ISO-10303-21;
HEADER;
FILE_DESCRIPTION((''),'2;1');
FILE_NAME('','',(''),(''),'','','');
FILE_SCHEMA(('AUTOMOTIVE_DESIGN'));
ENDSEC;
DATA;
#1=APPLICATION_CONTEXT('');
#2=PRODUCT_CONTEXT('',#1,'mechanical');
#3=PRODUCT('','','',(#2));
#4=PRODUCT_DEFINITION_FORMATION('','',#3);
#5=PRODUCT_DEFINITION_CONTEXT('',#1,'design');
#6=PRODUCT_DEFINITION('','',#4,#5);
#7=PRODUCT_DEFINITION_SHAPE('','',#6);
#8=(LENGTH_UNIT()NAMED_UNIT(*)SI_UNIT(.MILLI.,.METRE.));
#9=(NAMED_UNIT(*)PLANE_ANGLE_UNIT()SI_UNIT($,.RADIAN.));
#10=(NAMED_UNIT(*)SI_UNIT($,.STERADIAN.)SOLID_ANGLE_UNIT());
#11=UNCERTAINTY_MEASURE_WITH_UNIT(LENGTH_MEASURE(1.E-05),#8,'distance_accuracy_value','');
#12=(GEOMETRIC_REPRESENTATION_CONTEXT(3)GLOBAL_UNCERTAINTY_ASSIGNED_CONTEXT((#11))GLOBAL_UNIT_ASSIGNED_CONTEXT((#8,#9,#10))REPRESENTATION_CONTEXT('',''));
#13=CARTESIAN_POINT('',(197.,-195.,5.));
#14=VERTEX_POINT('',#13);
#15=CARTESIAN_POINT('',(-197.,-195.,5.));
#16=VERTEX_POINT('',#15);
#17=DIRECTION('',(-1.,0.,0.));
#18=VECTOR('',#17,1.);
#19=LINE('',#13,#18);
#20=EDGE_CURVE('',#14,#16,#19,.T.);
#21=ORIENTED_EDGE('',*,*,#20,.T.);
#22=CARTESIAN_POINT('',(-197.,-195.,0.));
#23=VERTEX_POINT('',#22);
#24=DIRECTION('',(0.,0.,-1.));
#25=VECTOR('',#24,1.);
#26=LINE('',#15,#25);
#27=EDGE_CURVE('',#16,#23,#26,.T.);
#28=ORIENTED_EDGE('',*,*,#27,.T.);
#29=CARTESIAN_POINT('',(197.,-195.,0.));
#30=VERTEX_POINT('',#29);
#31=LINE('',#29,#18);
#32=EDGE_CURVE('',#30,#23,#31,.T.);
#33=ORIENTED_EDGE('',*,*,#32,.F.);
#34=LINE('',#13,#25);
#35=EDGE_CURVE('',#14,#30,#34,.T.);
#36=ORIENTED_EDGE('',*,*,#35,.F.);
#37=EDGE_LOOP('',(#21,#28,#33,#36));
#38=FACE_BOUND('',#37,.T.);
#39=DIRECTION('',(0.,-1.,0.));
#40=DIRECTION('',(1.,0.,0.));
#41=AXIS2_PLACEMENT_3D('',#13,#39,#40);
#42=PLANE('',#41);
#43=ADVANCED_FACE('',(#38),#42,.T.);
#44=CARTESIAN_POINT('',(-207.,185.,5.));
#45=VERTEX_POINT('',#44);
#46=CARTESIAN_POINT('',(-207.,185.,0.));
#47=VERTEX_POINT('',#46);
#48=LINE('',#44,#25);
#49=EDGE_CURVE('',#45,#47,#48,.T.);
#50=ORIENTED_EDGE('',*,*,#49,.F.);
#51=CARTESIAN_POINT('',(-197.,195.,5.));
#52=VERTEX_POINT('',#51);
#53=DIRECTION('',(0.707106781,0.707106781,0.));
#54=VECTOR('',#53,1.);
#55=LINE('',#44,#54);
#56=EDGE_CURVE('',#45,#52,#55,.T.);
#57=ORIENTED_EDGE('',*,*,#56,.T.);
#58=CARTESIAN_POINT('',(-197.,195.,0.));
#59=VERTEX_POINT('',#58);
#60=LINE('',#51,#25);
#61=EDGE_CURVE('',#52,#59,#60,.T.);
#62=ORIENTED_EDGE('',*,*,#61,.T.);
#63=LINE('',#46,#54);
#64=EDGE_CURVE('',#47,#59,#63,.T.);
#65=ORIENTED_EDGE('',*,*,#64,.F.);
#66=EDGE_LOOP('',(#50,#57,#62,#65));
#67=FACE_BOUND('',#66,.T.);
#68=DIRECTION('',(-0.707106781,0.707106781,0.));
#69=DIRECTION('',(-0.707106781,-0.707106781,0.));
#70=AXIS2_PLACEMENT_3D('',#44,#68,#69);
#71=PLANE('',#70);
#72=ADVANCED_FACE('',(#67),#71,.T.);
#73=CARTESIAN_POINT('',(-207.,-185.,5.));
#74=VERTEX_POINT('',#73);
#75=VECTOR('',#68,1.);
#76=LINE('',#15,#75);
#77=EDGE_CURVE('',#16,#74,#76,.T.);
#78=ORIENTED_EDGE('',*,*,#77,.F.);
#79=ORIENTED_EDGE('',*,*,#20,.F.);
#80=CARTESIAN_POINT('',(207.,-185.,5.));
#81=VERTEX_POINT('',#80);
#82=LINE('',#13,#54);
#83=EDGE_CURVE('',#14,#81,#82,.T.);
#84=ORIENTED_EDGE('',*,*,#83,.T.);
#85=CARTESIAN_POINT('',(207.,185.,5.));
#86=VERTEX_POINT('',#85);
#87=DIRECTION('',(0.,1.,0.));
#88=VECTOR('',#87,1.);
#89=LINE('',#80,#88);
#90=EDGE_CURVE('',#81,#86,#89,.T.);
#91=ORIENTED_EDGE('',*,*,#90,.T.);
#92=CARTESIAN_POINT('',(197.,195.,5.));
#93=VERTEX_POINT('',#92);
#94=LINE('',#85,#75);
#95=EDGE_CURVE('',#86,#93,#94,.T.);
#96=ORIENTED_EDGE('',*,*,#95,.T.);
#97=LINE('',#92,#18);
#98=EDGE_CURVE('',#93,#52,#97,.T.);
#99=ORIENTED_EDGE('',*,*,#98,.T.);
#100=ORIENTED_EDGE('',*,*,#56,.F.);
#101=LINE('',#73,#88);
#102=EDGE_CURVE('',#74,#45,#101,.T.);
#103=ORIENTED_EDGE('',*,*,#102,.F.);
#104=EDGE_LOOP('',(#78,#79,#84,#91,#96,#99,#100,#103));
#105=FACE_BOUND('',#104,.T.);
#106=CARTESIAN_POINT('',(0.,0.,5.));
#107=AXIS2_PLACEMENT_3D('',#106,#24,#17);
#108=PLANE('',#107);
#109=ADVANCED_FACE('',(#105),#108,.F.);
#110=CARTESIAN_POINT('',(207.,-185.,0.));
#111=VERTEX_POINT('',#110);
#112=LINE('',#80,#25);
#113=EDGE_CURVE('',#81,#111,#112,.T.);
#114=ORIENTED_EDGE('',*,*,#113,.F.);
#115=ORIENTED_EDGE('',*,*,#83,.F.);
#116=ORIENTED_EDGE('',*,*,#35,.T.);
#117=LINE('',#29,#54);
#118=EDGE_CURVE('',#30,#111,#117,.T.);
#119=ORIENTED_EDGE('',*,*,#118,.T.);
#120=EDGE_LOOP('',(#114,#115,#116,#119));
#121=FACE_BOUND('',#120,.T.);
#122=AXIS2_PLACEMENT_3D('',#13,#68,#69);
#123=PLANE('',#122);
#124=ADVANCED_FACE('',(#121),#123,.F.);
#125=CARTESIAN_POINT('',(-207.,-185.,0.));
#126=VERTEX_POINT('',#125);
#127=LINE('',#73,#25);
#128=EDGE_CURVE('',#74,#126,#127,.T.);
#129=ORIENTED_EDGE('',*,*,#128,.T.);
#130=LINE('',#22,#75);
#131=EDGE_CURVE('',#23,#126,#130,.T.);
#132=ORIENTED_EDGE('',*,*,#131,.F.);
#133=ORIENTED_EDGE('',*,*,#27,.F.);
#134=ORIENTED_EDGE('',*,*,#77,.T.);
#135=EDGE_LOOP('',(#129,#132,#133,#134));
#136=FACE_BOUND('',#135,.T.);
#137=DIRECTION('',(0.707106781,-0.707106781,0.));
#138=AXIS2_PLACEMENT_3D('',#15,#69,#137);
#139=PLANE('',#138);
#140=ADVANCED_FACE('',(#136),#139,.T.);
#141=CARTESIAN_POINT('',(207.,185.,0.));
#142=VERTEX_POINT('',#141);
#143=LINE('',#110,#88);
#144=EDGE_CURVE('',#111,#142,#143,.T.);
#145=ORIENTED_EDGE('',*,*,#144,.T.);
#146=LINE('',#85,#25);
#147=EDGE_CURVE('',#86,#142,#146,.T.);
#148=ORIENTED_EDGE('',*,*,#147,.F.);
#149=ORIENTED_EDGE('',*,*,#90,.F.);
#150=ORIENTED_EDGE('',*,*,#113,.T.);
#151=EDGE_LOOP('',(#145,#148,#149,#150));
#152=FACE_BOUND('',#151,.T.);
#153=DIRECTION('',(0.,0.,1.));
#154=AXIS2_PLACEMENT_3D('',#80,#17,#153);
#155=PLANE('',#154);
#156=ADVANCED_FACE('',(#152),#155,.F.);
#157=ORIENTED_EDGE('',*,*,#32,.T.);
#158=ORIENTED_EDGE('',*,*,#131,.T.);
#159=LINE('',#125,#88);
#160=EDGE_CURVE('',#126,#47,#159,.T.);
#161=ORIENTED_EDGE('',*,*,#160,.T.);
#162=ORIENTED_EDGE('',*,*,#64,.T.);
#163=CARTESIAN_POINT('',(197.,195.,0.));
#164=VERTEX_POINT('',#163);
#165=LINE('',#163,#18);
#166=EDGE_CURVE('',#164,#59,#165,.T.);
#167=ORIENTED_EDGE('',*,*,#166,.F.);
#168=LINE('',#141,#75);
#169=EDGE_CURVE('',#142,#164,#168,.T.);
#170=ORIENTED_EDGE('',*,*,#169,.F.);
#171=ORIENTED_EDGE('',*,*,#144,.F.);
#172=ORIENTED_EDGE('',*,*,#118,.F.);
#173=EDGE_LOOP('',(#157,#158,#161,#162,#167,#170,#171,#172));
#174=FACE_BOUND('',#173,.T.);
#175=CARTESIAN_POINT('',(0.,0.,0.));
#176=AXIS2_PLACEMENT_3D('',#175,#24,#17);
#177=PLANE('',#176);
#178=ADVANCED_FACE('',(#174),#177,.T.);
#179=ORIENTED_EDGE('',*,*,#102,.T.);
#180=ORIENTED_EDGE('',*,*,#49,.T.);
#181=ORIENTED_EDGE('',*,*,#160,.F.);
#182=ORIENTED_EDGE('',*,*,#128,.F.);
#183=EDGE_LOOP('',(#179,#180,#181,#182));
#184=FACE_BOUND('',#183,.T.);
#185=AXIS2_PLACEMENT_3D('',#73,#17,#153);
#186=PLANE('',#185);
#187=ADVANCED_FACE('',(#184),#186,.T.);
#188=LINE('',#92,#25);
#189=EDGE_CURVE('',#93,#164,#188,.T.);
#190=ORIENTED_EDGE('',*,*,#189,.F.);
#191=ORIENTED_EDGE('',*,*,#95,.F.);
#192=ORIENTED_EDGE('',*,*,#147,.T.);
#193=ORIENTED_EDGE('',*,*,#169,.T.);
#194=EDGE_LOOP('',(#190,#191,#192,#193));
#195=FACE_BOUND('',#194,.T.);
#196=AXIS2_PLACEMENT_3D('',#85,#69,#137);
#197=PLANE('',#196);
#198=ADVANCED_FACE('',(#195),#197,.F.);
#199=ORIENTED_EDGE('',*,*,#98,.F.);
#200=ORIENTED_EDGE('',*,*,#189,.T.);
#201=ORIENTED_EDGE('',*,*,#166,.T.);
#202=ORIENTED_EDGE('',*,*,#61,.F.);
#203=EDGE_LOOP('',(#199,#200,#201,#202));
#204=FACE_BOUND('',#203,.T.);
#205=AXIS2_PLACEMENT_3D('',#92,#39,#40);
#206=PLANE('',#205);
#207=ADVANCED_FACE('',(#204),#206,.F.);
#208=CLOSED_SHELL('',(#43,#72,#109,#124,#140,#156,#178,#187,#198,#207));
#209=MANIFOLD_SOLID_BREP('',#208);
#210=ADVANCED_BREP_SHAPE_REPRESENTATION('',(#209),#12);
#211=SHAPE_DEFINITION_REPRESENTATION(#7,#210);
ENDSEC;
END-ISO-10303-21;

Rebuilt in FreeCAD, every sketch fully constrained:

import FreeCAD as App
import Part
import Sketcher
Q = App.Units.Quantity


def add_polygon(sketch, points):
    """Adds a closed chain of lines whose ends are joined by coincident constraints."""
    first, n = sketch.GeometryCount, len(points)
    for a, b in zip(points, points[1:] + points[:1]):
        sketch.addGeometry(Part.LineSegment(App.Vector(*a, 0), App.Vector(*b, 0)), False)
    for i in range(n):
        sketch.addConstraint(Sketcher.Constraint("Coincident", first + i, 2, first + (i + 1) % n, 1))

doc = App.newDocument("Part")
body = doc.addObject("PartDesign::Body", "Body")

sketch1 = body.newObject("Sketcher::SketchObject", "Sketch")
sketch1.AttachmentSupport = (doc.getObject("XY_Plane"), [""])
sketch1.MapMode = "FlatFace"
add_polygon(sketch1, [(-197, 195), (-207, 185), (-207, -185), (-197, -195), (197, -195), (207, -185), (207, 185), (197, 195)])
sketch1.addConstraint(Sketcher.Constraint("Vertical", 1))
sketch1.addConstraint(Sketcher.Constraint("Horizontal", 3))
sketch1.addConstraint(Sketcher.Constraint("Vertical", 5))
sketch1.addConstraint(Sketcher.Constraint("Horizontal", 7))
sketch1.addConstraint(Sketcher.Constraint("Symmetric", 0, 2, 4, 2, -1, 1))
sketch1.addConstraint(Sketcher.Constraint("Symmetric", 2, 2, 6, 2, -1, 1))
sketch1.addConstraint(Sketcher.Constraint("Perpendicular", 0, 2))
sketch1.addConstraint(Sketcher.Constraint("Perpendicular", 2, 4))
sketch1.addConstraint(Sketcher.Constraint("Perpendicular", 4, 6))
sketch1.addConstraint(Sketcher.Constraint("Horizontal", 1, 2, 4, 2))
sketch1.addConstraint(Sketcher.Constraint("Vertical", 3, 2, 6, 2))
sketch1.addConstraint(Sketcher.Constraint("DistanceX", 3, 1, 3, 2, Q("394 mm")))
sketch1.addConstraint(Sketcher.Constraint("DistanceY", 1, 2, 1, 1, Q("370 mm")))
sketch1.addConstraint(Sketcher.Constraint("DistanceX", 0, 2, -1, 1, Q("207 mm")))
pad1 = body.newObject("PartDesign::Pad", "Pad")
pad1.Profile = sketch1
pad1.Length = 5

doc.recompute()
